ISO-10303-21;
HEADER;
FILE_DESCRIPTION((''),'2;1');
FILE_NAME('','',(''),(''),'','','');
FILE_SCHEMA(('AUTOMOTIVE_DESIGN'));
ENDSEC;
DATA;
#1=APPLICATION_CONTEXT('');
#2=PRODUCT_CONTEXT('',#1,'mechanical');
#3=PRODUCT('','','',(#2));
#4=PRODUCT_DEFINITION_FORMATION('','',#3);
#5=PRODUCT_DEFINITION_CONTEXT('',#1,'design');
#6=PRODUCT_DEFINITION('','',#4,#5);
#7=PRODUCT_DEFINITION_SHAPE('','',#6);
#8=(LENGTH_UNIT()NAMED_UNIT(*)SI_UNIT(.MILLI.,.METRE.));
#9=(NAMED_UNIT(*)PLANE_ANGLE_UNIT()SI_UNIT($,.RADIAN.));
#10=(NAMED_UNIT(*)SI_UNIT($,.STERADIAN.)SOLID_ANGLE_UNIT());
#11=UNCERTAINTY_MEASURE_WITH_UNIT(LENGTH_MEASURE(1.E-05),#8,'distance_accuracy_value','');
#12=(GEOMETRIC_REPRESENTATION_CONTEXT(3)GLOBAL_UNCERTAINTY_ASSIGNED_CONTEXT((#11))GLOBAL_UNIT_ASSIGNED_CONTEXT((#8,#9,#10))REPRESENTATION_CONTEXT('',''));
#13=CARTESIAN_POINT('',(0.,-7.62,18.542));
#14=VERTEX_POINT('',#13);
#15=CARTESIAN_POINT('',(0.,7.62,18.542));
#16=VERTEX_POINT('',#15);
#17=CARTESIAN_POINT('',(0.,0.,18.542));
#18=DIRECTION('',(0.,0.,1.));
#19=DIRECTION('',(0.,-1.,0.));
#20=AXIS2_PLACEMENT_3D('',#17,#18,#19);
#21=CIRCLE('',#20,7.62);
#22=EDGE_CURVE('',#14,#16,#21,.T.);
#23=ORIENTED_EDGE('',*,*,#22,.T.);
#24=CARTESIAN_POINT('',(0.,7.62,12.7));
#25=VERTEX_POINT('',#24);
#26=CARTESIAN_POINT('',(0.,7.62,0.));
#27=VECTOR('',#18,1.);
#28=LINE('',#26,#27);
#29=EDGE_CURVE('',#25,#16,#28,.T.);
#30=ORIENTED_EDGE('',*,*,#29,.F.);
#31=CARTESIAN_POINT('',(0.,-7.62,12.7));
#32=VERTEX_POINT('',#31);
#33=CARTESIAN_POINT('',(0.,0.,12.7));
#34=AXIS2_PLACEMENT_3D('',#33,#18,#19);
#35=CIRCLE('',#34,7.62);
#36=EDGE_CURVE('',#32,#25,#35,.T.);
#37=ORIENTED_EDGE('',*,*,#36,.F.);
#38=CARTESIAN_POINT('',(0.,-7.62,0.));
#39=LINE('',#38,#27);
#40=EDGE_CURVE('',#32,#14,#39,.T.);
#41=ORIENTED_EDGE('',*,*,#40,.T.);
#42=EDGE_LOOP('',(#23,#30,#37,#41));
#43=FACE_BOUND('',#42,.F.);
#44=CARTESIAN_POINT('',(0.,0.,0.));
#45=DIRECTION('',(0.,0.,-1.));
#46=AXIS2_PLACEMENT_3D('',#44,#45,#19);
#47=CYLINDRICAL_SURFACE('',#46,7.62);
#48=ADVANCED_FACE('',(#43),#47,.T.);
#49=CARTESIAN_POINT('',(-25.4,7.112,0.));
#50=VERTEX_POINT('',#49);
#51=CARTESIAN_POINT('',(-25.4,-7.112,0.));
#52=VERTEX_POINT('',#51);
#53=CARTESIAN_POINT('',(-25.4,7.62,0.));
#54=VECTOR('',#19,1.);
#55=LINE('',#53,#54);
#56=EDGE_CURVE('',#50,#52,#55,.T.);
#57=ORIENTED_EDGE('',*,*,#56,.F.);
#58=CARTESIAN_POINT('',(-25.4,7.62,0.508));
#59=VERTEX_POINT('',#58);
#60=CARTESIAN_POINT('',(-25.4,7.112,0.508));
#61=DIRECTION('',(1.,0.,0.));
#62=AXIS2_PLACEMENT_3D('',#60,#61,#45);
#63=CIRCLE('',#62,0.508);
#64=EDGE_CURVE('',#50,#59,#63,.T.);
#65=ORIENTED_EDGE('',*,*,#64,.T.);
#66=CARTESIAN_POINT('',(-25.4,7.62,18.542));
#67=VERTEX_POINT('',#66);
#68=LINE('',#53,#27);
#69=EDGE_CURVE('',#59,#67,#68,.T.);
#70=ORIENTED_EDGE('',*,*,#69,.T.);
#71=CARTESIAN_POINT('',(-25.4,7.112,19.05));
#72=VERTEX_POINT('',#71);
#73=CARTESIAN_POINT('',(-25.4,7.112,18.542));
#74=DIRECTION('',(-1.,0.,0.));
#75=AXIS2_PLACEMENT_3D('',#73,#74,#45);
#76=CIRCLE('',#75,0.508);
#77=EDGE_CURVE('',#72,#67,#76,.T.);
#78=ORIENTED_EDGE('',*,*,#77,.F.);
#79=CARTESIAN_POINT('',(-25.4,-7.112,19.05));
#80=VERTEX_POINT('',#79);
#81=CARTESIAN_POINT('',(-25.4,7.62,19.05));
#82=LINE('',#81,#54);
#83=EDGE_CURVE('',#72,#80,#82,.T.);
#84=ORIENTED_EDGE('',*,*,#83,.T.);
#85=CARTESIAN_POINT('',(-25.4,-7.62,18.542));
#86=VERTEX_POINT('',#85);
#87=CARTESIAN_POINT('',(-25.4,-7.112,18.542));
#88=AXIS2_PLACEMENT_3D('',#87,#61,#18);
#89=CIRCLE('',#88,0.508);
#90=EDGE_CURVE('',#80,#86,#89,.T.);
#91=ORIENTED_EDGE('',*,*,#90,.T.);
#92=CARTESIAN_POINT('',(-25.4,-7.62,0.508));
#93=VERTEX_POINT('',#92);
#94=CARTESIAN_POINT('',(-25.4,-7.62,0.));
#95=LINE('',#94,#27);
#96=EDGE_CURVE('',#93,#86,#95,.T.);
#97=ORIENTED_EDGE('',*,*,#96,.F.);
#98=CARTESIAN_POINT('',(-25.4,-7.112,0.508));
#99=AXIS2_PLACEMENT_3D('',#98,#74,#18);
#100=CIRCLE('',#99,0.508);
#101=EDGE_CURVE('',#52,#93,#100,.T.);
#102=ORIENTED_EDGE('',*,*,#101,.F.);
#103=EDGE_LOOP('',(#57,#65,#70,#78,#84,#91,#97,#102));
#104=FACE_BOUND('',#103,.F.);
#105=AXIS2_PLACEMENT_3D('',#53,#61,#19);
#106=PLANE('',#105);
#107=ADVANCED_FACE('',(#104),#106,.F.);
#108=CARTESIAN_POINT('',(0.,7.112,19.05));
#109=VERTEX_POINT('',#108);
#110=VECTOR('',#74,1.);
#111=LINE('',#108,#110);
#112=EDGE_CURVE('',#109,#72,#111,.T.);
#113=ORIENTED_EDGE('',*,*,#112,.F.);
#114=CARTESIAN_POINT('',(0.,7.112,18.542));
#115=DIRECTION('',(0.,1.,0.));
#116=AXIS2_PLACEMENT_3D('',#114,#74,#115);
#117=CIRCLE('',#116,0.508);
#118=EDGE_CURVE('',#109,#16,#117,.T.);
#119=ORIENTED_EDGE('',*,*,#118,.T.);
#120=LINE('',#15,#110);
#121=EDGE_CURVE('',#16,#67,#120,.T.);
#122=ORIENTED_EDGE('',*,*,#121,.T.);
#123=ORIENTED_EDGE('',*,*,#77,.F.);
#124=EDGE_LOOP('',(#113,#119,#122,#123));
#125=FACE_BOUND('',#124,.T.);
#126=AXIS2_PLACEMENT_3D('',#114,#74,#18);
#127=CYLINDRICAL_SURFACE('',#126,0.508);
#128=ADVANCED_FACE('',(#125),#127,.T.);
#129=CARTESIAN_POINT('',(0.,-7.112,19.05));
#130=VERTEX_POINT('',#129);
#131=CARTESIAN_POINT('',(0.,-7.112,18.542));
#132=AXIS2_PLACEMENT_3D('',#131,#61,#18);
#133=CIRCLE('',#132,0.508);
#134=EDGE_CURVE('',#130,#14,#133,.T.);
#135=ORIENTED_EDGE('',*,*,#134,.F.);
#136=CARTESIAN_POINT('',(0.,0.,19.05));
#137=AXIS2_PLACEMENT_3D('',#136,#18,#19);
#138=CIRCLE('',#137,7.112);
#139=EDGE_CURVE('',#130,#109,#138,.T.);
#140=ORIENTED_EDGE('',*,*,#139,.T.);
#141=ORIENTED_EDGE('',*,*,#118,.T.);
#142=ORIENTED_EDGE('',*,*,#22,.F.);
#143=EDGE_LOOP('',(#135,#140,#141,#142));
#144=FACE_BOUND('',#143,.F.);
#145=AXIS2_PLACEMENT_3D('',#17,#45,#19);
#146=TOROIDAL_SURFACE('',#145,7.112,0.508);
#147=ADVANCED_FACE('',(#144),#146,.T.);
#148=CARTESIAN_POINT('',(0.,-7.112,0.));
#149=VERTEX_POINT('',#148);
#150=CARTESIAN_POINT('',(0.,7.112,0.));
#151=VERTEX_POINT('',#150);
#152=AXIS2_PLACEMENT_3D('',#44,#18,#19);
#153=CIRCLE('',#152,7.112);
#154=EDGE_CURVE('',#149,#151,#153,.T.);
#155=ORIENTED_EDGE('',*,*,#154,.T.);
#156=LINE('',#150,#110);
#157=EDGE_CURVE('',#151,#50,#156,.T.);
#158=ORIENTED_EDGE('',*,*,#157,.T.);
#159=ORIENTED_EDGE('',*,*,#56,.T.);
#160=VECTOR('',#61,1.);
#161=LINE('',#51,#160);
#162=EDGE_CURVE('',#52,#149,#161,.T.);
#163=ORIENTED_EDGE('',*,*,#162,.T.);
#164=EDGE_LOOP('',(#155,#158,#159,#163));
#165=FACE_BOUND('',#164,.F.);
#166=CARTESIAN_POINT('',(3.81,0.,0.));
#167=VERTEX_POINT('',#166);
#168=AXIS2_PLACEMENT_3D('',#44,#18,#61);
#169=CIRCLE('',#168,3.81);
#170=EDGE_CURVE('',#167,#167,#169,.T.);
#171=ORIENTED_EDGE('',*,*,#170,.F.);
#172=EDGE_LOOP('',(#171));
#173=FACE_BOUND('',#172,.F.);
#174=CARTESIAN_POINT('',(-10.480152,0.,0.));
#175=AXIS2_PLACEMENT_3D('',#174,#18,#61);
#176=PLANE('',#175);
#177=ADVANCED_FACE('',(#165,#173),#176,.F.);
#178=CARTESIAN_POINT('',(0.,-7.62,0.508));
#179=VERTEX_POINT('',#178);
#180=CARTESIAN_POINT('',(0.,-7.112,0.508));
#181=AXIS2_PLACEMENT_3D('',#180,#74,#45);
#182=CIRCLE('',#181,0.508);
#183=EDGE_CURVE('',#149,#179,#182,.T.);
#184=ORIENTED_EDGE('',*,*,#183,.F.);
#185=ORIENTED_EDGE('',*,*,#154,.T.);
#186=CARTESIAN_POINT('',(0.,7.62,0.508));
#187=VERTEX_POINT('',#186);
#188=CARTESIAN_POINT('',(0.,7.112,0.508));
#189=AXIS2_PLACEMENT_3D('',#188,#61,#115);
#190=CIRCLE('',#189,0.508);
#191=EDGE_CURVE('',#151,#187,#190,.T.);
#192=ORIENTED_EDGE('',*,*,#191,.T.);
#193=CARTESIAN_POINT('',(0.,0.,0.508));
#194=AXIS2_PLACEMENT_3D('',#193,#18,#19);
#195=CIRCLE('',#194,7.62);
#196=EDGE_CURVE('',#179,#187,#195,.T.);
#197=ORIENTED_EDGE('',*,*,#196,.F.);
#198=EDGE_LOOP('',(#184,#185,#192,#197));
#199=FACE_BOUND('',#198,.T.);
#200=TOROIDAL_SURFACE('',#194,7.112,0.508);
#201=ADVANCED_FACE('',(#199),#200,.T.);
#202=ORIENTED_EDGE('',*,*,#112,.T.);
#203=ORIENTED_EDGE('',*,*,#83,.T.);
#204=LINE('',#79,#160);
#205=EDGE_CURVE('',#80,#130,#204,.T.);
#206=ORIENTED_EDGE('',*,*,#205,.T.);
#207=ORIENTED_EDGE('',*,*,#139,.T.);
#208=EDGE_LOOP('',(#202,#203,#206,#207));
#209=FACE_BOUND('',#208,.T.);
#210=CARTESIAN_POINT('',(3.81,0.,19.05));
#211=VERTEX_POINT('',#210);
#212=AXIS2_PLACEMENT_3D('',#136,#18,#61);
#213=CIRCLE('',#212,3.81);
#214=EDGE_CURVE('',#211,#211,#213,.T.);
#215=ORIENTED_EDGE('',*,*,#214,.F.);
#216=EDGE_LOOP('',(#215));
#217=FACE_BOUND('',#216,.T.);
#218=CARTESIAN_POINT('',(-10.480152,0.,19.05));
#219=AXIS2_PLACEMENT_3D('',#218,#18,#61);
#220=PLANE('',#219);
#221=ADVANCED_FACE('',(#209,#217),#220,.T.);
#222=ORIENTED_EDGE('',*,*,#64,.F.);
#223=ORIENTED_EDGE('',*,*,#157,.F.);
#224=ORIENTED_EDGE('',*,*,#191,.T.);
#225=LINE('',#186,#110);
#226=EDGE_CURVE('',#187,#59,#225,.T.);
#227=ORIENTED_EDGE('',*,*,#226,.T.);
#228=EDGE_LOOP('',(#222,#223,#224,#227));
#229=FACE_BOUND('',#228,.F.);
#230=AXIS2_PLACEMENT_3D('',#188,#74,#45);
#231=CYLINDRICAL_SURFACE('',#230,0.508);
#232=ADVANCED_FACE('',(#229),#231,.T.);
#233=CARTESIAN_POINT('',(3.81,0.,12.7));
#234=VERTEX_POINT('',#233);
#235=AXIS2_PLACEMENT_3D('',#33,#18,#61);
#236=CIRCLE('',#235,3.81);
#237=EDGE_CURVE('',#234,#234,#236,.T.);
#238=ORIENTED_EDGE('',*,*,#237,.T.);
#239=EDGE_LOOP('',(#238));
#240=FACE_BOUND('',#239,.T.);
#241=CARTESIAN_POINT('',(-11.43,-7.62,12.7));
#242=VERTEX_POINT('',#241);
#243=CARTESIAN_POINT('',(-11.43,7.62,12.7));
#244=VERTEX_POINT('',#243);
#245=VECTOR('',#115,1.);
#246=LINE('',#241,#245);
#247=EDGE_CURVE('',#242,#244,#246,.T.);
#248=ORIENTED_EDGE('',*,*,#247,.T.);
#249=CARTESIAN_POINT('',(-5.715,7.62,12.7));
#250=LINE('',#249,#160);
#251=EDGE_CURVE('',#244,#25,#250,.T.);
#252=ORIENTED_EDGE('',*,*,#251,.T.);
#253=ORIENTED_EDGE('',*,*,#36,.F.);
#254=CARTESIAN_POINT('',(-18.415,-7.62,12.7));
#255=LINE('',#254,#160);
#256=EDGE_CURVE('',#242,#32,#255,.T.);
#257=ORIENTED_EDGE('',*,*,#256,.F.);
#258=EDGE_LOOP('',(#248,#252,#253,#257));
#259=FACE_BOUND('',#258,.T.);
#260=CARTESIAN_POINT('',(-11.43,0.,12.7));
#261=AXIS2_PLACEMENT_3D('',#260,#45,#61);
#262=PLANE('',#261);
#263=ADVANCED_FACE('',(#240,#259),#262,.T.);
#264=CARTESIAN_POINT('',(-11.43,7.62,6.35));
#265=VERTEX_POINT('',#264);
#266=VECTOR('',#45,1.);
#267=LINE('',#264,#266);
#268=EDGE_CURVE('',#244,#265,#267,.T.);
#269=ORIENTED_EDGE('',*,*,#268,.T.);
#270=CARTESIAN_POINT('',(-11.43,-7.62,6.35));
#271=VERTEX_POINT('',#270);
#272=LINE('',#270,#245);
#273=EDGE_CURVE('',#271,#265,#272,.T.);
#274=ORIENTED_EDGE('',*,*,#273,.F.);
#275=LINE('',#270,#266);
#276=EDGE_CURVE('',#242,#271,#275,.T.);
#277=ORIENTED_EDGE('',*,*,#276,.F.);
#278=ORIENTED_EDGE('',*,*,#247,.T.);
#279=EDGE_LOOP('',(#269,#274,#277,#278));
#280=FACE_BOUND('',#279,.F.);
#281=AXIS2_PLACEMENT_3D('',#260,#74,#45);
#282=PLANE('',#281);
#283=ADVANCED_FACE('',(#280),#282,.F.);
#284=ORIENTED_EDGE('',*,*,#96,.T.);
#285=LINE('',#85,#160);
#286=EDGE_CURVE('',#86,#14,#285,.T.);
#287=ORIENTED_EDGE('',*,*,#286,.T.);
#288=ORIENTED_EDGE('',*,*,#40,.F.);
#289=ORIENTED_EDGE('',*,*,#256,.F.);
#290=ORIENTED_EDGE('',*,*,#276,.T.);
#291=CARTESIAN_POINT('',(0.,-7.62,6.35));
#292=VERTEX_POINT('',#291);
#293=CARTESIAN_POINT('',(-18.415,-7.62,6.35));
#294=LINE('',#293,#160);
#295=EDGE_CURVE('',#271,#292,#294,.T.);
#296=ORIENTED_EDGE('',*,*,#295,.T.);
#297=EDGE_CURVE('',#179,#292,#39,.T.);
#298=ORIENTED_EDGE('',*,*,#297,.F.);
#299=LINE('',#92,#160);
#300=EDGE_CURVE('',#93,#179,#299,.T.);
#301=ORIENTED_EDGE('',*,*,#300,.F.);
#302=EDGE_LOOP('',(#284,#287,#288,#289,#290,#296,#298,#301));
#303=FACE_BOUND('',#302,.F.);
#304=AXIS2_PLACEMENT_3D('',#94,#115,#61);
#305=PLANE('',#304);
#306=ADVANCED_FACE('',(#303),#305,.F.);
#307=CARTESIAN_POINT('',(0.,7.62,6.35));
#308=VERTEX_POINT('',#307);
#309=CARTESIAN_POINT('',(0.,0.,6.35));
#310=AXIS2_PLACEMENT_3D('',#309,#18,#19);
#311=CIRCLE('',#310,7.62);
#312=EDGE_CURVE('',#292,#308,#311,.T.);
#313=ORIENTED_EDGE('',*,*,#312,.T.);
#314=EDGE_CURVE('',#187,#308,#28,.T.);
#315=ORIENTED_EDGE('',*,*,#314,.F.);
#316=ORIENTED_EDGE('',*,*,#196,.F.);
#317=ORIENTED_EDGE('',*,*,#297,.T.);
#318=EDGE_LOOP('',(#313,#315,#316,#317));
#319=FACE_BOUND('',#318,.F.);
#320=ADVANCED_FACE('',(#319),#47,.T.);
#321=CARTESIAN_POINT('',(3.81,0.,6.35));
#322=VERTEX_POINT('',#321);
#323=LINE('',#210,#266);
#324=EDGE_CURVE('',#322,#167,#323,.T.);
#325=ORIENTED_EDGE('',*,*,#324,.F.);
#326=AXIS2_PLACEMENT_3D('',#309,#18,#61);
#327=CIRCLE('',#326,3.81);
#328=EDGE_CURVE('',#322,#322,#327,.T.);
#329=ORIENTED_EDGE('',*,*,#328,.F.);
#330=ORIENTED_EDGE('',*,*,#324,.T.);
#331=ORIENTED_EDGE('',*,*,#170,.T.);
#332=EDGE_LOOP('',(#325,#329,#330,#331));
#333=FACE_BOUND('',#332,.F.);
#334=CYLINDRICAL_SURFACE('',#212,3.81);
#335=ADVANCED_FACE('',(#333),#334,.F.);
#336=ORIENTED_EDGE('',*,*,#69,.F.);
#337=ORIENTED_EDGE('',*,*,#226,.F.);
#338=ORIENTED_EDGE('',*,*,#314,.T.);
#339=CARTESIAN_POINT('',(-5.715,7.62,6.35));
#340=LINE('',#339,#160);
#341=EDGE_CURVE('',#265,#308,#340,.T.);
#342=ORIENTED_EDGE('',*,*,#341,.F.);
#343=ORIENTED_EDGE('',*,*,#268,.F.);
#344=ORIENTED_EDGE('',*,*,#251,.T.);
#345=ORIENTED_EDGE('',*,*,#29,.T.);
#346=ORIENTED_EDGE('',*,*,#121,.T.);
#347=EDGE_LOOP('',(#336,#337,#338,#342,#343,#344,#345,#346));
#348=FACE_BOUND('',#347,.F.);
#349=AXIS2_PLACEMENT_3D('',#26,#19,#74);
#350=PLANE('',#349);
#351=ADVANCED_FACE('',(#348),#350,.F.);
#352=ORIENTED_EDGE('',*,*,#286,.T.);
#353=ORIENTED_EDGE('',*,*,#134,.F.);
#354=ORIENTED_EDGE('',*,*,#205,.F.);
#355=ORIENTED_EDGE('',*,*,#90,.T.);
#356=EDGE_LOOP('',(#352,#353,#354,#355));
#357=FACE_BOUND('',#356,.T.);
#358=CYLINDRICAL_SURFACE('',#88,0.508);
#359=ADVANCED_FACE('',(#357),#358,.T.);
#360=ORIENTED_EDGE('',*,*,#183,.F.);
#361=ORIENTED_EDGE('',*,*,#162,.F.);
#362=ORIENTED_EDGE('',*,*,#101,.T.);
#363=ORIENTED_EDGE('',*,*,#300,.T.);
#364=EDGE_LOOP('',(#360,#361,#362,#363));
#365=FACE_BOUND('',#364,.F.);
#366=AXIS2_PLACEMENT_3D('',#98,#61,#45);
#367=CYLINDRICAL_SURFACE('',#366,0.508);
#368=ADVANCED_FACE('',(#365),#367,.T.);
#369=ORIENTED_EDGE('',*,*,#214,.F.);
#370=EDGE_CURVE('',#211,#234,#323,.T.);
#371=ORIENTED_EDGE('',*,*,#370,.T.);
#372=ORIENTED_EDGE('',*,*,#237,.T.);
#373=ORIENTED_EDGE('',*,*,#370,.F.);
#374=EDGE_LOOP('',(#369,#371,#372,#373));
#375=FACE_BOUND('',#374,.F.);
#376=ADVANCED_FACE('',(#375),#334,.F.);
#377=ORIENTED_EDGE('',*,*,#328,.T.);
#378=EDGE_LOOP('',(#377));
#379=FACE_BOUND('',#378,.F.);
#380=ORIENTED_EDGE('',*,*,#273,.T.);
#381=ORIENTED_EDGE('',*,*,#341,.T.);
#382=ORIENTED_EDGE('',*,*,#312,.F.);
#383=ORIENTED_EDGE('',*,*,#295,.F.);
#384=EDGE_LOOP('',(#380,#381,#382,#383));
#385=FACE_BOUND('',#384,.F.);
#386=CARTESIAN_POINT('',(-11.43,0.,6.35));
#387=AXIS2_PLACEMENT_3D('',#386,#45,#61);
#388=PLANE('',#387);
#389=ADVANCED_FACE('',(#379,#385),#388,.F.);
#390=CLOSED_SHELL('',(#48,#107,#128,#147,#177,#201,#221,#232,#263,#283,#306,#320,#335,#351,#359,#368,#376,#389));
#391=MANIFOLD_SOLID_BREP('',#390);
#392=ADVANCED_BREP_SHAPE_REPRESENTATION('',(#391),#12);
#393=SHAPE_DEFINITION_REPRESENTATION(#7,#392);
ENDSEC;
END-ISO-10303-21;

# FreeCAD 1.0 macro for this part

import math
import FreeCAD as App
import Part
import Sketcher
from FreeCAD import Vector
Q = App.Units.Quantity


def edges_at(feature, points):
    """Names of the edges that pass closest to the given points."""
    edges = feature.Shape.Edges
    near = lambda p: min(range(len(edges)), key=lambda i: edges[i].distToShape(Part.Vertex(*p))[0])
    return sorted({f"Edge{near(p) + 1}" for p in points})

doc = App.newDocument("Part")
params = doc.addObject("Spreadsheet::Sheet", "Params")
for row, (alias, value) in enumerate([
    ("sketch1_radius", "0.3 in"),
    ("sketch1_width", "1 in"),
    ("pad1_length", "0.75 in"),
    ("sketch2_width", "0.75 in"),
    ("sketch2_height", "0.25 in"),
    ("sketch3_diameter", "0.3 in"),
    ("fillet_radius", "0.02 in"),
], start=1):
    params.set(f"A{row}", alias)
    params.set(f"B{row}", "=" + value)
    params.setAlias(f"B{row}", alias)

body = doc.addObject("PartDesign::Body", "Body")

sketch1 = doc.addObject("Sketcher::SketchObject", "Sketch")
body.addObject(sketch1)
sketch1.AttachmentSupport = (doc.XY_Plane, [""])
sketch1.MapMode = "FlatFace"
sketch1.addGeometry([
    Part.LineSegment(Vector(0, 7.62, 0), Vector(-25.4, 7.62, 0)),
    Part.LineSegment(Vector(-25.4, 7.62, 0), Vector(-25.4, -7.62, 0)),
    Part.LineSegment(Vector(-25.4, -7.62, 0), Vector(0, -7.62, 0)),
    Part.ArcOfCircle(Part.Circle(Vector(0, 0, 0), Vector(0, 0, 1), 7.62), math.radians(-90), math.radians(90)),
], False)
sketch1.addConstraint([
    Sketcher.Constraint("Coincident", 0, 2, 1, 1),
    Sketcher.Constraint("Coincident", 1, 2, 2, 1),
    Sketcher.Constraint("Tangent", 2, 2, 3, 1),
    Sketcher.Constraint("Tangent", 3, 2, 0, 1),
    Sketcher.Constraint("Horizontal", 0),
    Sketcher.Constraint("Vertical", 1),
    Sketcher.Constraint("Horizontal", 2),
    Sketcher.Constraint("Coincident", 3, 3, -1, 1),
    Sketcher.Constraint("Radius", 3, Q("0.3 in")),
    Sketcher.Constraint("DistanceX", 0, 2, 0, 1, Q("1 in")),
])
sketch1.setExpression("Constraints[8]", "Params.sketch1_radius")
sketch1.setExpression("Constraints[9]", "Params.sketch1_width")
pad1 = doc.addObject("PartDesign::Pad", "Pad")
body.addObject(pad1)
pad1.Profile = sketch1
pad1.setExpression("Length", "Params.pad1_length")

sketch2 = doc.addObject("Sketcher::SketchObject", "Sketch001")
body.addObject(sketch2)
sketch2.AttachmentSupport = (doc.XZ_Plane, [""])
sketch2.MapMode = "FlatFace"
sketch2.addGeometry([
    Part.LineSegment(Vector(-11.43, 6.35, 0), Vector(-11.43, 12.7, 0)),
    Part.LineSegment(Vector(-11.43, 12.7, 0), Vector(7.62, 12.7, 0)),
    Part.LineSegment(Vector(7.62, 12.7, 0), Vector(7.62, 6.35, 0)),
    Part.LineSegment(Vector(7.62, 6.35, 0), Vector(-11.43, 6.35, 0)),
], False)
sketch2.addConstraint([
    Sketcher.Constraint("Coincident", 0, 2, 1, 1),
    Sketcher.Constraint("Coincident", 1, 2, 2, 1),
    Sketcher.Constraint("Coincident", 2, 2, 3, 1),
    Sketcher.Constraint("Coincident", 3, 2, 0, 1),
    Sketcher.Constraint("Vertical", 0),
    Sketcher.Constraint("Horizontal", 1),
    Sketcher.Constraint("Vertical", 2),
    Sketcher.Constraint("Horizontal", 3),
    Sketcher.Constraint("DistanceX", 1, 1, 1, 2, Q("0.75 in")),
    Sketcher.Constraint("DistanceY", 0, 1, 0, 2, Q("0.25 in")),
    Sketcher.Constraint("DistanceY", -1, 1, 0, 2, Q("0.5 in")),
    Sketcher.Constraint("DistanceX", -1, 1, 1, 2, Q("0.3 in")),
])
sketch2.setExpression("Constraints[8]", "Params.sketch2_width")
sketch2.setExpression("Constraints[9]", "Params.sketch2_height")
pocket1 = doc.addObject("PartDesign::Pocket", "Pocket")
body.addObject(pocket1)
pocket1.Profile = sketch2
pocket1.Type = "ThroughAll"
pocket1.Midplane = True

sketch3 = doc.addObject("Sketcher::SketchObject", "Sketch002")
body.addObject(sketch3)
sketch3.AttachmentSupport = (doc.XY_Plane, [""])
sketch3.MapMode = "FlatFace"
sketch3.AttachmentOffset = App.Placement(Vector(0, 0, 0.75 * 25.4), App.Rotation())
sketch3.addGeometry(Part.Circle(Vector(0, 0, 0), Vector(0, 0, 1), 3.81), False)
sketch3.addConstraint([
    Sketcher.Constraint("Coincident", 0, 3, -1, 1),
    Sketcher.Constraint("Diameter", 0, Q("0.3 in")),
])
sketch3.setExpression("Constraints[1]", "Params.sketch3_diameter")
pocket2 = doc.addObject("PartDesign::Pocket", "Pocket001")
body.addObject(pocket2)
pocket2.Profile = sketch3
pocket2.Type = "ThroughAll"
doc.recompute()

fillet = doc.addObject("PartDesign::Fillet", "Fillet")
body.addObject(fillet)
fillet.Base = (pocket2, edges_at(pocket2, [
    (-12.7, -7.62, 19.05),
    (7.62, 0, 19.05),
    (-12.7, -7.62, 0),
    (-12.7, 7.62, 0),
    (7.62, 0, 0),
    (-12.7, 7.62, 19.05),
]))
fillet.setExpression("Radius", "Params.fillet_radius")

doc.recompute()
